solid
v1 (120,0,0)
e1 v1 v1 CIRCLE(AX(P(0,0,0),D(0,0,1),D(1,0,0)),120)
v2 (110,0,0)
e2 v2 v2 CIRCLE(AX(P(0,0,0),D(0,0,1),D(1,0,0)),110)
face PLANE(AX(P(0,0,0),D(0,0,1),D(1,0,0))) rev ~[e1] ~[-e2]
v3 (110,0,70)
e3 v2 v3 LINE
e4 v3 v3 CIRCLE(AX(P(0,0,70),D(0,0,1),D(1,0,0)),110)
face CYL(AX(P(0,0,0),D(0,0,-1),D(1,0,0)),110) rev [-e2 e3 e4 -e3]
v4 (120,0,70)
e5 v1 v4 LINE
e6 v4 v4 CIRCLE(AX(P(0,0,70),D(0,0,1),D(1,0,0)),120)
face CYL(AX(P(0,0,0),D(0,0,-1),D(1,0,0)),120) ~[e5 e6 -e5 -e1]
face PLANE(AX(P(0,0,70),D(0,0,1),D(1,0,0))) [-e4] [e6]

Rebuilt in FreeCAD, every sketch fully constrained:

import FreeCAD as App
import Part
import Sketcher

doc = App.newDocument("Part")
body = doc.addObject("PartDesign::Body", "Body")

# Sketch on XY plane
sketch1 = body.newObject("Sketcher::SketchObject", "Sketch")
sketch1.AttachmentSupport = (doc.getObject("XY_Plane"), [""])
sketch1.MapMode = "FlatFace"
sketch1.addGeometry([
    Part.Circle(App.Vector(0, 0, 0), App.Vector(0, 0, 1), 120),
    Part.Circle(App.Vector(0, 0, 0), App.Vector(0, 0, 1), 110),
], False)
sketch1.addConstraint([
    Sketcher.Constraint("Coincident", 0, 3, -1, 1),
    Sketcher.Constraint("Coincident", 1, 3, -1, 1),
    Sketcher.Constraint("Diameter", 0, 240.0),
    Sketcher.Constraint("Diameter", 1, 220.0),
])
pad1 = body.newObject("PartDesign::Pad", "Pad")
pad1.Profile = sketch1
pad1.Length = 70

doc.recompute()
